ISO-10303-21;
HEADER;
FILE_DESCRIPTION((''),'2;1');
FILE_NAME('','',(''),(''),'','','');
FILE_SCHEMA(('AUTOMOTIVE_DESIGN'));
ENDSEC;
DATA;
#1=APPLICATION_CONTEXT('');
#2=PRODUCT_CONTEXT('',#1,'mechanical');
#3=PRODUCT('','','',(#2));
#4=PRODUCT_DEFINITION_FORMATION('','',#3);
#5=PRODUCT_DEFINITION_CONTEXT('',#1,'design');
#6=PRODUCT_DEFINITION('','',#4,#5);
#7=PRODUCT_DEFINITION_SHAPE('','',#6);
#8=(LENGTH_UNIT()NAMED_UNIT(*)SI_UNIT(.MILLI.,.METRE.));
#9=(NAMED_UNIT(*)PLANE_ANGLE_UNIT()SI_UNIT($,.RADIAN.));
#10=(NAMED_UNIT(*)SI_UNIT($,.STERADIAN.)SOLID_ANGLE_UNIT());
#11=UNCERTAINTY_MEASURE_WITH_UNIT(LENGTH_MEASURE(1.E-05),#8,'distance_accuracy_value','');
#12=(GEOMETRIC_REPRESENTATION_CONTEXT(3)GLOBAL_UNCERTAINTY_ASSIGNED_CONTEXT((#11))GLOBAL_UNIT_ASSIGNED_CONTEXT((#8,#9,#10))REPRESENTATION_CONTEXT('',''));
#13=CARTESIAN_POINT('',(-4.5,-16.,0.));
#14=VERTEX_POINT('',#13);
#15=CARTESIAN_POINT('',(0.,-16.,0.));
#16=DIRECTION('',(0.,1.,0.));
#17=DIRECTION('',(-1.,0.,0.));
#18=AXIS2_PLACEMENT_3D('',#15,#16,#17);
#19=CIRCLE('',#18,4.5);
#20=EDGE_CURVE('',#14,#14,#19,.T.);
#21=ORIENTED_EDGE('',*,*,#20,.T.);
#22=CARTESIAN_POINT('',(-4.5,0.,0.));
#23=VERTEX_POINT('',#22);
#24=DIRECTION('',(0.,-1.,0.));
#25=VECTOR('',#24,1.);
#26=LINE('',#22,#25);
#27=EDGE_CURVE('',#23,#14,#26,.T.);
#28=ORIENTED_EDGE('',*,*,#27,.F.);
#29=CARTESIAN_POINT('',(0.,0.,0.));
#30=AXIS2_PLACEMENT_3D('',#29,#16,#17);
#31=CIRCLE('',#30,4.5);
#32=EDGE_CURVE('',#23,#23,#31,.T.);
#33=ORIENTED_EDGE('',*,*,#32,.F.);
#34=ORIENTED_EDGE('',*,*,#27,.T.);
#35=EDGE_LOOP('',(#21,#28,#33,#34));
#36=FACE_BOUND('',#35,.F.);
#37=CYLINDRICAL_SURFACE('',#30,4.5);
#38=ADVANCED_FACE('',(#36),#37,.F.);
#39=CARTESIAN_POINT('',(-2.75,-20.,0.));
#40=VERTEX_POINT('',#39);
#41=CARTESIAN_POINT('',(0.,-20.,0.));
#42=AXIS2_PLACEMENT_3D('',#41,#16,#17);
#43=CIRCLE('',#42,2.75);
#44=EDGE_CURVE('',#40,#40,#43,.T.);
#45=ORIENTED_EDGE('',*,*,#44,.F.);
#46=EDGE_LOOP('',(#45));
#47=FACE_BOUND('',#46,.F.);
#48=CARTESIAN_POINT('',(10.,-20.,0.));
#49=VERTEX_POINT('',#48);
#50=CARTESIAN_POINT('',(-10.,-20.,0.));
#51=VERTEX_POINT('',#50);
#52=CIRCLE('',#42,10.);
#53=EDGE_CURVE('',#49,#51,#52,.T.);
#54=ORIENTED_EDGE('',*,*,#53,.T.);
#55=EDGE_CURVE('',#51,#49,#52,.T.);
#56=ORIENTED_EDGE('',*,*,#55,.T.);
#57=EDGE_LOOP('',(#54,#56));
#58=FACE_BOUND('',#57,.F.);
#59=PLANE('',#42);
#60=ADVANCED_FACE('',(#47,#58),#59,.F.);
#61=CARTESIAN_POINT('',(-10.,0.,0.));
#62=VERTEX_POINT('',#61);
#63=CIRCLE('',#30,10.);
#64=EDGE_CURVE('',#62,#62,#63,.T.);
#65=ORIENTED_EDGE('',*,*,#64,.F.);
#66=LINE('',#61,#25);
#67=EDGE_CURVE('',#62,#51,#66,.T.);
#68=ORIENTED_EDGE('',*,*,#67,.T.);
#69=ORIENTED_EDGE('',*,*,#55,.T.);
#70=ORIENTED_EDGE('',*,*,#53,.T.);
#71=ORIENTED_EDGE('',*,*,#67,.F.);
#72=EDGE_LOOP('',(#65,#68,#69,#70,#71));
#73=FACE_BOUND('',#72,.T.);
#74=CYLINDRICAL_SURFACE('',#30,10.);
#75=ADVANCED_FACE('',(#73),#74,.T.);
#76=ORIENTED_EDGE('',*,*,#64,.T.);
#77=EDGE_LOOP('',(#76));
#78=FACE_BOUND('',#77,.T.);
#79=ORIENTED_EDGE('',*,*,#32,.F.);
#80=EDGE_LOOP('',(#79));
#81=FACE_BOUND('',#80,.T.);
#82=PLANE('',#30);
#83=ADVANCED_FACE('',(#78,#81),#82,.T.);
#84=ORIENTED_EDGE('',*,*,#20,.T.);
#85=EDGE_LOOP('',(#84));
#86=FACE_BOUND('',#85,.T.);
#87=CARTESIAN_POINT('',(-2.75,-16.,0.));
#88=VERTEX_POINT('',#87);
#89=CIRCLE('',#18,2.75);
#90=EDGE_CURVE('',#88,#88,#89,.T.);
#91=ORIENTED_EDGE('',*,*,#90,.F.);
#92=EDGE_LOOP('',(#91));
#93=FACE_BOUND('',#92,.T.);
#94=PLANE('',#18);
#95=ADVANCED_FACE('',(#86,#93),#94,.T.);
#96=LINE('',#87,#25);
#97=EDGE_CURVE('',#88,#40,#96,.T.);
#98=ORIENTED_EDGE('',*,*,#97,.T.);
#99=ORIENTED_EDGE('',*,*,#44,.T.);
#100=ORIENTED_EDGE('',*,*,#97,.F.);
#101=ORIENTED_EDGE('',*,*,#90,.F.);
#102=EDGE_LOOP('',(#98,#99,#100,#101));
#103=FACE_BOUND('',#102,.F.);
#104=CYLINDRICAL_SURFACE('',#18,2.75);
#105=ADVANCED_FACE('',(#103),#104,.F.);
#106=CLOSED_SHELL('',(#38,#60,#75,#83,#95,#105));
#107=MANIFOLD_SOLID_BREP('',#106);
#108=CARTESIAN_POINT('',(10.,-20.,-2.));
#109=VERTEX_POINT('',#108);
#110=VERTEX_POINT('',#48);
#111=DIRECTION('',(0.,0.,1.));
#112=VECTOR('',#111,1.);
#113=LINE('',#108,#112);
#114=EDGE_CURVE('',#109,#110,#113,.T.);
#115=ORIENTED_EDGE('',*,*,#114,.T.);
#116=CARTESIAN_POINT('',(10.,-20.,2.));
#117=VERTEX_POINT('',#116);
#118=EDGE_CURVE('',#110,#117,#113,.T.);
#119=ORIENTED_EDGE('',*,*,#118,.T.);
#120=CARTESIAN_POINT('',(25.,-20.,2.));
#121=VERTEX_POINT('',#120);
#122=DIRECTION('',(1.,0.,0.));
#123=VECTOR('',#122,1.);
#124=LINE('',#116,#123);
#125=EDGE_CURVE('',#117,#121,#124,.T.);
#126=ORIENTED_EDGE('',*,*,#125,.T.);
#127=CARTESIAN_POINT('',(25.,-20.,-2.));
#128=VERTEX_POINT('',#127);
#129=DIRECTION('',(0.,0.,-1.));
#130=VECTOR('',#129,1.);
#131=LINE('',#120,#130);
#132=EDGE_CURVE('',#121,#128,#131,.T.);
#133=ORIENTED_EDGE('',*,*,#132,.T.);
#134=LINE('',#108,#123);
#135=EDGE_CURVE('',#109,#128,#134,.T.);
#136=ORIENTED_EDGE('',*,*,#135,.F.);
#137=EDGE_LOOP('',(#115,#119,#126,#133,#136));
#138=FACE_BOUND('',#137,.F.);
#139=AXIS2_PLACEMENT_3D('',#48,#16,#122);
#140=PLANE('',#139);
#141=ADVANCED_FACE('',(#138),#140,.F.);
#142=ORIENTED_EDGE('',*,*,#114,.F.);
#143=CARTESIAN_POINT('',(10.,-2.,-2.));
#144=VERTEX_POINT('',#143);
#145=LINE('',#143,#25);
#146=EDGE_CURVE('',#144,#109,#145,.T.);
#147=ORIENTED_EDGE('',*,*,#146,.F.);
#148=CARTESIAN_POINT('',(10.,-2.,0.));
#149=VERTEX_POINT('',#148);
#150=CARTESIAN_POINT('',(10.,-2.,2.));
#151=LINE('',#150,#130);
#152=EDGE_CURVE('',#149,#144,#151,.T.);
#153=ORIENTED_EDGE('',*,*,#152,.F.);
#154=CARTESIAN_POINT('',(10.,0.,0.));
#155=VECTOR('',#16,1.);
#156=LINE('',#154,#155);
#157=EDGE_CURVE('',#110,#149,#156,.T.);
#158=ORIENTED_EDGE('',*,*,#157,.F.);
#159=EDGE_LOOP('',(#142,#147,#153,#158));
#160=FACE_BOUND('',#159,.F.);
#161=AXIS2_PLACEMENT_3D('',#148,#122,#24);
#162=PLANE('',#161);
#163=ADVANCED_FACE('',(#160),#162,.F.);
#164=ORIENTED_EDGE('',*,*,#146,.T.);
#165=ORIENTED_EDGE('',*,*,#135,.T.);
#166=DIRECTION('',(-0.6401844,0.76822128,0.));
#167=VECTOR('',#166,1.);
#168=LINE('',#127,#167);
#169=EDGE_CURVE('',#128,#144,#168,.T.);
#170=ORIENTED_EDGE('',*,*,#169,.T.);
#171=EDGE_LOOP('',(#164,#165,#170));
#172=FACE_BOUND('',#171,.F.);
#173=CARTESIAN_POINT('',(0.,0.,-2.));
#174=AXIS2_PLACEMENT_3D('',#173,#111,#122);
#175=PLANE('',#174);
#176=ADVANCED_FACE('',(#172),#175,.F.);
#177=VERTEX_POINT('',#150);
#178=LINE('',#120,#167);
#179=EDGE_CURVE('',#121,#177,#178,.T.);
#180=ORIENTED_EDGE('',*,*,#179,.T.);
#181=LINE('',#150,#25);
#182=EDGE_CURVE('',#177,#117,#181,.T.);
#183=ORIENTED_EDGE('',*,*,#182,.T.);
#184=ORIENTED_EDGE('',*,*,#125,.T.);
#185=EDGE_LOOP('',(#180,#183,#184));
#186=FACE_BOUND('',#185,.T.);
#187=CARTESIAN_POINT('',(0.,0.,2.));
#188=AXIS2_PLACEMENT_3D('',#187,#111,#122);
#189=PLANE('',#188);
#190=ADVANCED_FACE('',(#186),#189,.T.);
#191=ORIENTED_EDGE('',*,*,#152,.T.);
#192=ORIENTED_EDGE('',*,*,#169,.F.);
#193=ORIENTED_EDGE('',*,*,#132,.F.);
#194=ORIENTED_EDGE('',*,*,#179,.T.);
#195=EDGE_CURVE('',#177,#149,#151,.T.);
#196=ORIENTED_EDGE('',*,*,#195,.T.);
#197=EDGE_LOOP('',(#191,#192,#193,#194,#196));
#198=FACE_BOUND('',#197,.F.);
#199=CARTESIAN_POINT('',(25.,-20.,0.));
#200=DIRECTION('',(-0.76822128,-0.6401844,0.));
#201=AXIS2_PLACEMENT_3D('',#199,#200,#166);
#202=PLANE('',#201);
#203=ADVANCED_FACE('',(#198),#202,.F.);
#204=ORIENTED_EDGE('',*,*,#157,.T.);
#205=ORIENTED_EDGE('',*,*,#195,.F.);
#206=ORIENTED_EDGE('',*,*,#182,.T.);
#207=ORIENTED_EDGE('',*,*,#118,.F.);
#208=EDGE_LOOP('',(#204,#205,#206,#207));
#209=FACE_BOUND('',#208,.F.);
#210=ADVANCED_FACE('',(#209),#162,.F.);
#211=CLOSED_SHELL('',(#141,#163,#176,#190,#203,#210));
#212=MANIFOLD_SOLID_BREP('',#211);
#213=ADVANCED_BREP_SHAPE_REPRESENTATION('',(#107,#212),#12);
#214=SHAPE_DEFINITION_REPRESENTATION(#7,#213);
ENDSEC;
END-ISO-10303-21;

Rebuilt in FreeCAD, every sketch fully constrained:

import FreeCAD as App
import Part
import Sketcher
from FreeCAD import Vector

doc = App.newDocument("Part")
body = doc.addObject("PartDesign::Body", "Body")
body.AllowCompound = True

sketch1 = body.newObject("Sketcher::SketchObject", "Sketch")
sketch1.AttachmentSupport = (doc.getObject("XZ_Plane"), [""])
sketch1.MapMode = "FlatFace"
sketch1.addGeometry(Part.Circle(Vector(0, 0, 0), Vector(0, 0, 1), 10), False)
sketch1.addConstraint([
    Sketcher.Constraint("Coincident", 0, 3, -1, 1),
    Sketcher.Constraint("Diameter", 0, 20.0),
])
pad1 = body.newObject("PartDesign::Pad", "Pad")
pad1.Profile = sketch1
pad1.Length = 20

sketch2 = body.newObject("Sketcher::SketchObject", "Sketch001")
sketch2.AttachmentSupport = (doc.getObject("XZ_Plane"), [""])
sketch2.MapMode = "FlatFace"
sketch2.addGeometry(Part.Circle(Vector(0, 0, 0), Vector(0, 0, 1), 4.5), False)
sketch2.addConstraint([
    Sketcher.Constraint("Coincident", 0, 3, -1, 1),
    Sketcher.Constraint("Diameter", 0, 9.0),
])
pocket1 = body.newObject("PartDesign::Pocket", "Pocket")
pocket1.Profile = sketch2
pocket1.Length = 16
pocket1.Reversed = True

sketch3 = body.newObject("Sketcher::SketchObject", "Sketch002")
sketch3.AttachmentSupport = (doc.getObject("XY_Plane"), [""])
sketch3.MapMode = "FlatFace"
sketch3.addGeometry([
    Part.LineSegment(Vector(10, -2, 0), Vector(10, -20, 0)),
    Part.LineSegment(Vector(10, -20, 0), Vector(25, -20, 0)),
    Part.LineSegment(Vector(25, -20, 0), Vector(10, -2, 0)),
], False)
sketch3.addConstraint([
    Sketcher.Constraint("Coincident", 0, 2, 1, 1),
    Sketcher.Constraint("Coincident", 1, 2, 2, 1),
    Sketcher.Constraint("Coincident", 2, 2, 0, 1),
    Sketcher.Constraint("Vertical", 0),
    Sketcher.Constraint("Horizontal", 1),
    Sketcher.Constraint("DistanceX", 1, 1, 1, 2, 15.0),
    Sketcher.Constraint("DistanceY", 0, 2, 0, 1, 18.0),
    Sketcher.Constraint("DistanceX", -1, 1, 0, 2, 10.0),
    Sketcher.Constraint("DistanceY", 0, 2, -1, 1, 20.0),
])
pad2 = body.newObject("PartDesign::Pad", "Pad001")
pad2.Profile = sketch3
pad2.Length = 4
pad2.Midplane = True

sketch4 = body.newObject("Sketcher::SketchObject", "Sketch003")
sketch4.AttachmentSupport = (doc.getObject("XZ_Plane"), [""])
sketch4.MapMode = "FlatFace"
sketch4.AttachmentOffset = App.Placement(Vector(0, 0, 16), App.Rotation())
sketch4.addGeometry(Part.Circle(Vector(0, 0, 0), Vector(0, 0, 1), 2.8), False)
sketch4.addConstraint([
    Sketcher.Constraint("Coincident", 0, 3, -1, 1),
    Sketcher.Constraint("Diameter", 0, 5.5),
])
pocket2 = body.newObject("PartDesign::Pocket", "Pocket001")
pocket2.Profile = sketch4
pocket2.Type = "ThroughAll"
pocket2.Reversed = True

doc.recompute()
